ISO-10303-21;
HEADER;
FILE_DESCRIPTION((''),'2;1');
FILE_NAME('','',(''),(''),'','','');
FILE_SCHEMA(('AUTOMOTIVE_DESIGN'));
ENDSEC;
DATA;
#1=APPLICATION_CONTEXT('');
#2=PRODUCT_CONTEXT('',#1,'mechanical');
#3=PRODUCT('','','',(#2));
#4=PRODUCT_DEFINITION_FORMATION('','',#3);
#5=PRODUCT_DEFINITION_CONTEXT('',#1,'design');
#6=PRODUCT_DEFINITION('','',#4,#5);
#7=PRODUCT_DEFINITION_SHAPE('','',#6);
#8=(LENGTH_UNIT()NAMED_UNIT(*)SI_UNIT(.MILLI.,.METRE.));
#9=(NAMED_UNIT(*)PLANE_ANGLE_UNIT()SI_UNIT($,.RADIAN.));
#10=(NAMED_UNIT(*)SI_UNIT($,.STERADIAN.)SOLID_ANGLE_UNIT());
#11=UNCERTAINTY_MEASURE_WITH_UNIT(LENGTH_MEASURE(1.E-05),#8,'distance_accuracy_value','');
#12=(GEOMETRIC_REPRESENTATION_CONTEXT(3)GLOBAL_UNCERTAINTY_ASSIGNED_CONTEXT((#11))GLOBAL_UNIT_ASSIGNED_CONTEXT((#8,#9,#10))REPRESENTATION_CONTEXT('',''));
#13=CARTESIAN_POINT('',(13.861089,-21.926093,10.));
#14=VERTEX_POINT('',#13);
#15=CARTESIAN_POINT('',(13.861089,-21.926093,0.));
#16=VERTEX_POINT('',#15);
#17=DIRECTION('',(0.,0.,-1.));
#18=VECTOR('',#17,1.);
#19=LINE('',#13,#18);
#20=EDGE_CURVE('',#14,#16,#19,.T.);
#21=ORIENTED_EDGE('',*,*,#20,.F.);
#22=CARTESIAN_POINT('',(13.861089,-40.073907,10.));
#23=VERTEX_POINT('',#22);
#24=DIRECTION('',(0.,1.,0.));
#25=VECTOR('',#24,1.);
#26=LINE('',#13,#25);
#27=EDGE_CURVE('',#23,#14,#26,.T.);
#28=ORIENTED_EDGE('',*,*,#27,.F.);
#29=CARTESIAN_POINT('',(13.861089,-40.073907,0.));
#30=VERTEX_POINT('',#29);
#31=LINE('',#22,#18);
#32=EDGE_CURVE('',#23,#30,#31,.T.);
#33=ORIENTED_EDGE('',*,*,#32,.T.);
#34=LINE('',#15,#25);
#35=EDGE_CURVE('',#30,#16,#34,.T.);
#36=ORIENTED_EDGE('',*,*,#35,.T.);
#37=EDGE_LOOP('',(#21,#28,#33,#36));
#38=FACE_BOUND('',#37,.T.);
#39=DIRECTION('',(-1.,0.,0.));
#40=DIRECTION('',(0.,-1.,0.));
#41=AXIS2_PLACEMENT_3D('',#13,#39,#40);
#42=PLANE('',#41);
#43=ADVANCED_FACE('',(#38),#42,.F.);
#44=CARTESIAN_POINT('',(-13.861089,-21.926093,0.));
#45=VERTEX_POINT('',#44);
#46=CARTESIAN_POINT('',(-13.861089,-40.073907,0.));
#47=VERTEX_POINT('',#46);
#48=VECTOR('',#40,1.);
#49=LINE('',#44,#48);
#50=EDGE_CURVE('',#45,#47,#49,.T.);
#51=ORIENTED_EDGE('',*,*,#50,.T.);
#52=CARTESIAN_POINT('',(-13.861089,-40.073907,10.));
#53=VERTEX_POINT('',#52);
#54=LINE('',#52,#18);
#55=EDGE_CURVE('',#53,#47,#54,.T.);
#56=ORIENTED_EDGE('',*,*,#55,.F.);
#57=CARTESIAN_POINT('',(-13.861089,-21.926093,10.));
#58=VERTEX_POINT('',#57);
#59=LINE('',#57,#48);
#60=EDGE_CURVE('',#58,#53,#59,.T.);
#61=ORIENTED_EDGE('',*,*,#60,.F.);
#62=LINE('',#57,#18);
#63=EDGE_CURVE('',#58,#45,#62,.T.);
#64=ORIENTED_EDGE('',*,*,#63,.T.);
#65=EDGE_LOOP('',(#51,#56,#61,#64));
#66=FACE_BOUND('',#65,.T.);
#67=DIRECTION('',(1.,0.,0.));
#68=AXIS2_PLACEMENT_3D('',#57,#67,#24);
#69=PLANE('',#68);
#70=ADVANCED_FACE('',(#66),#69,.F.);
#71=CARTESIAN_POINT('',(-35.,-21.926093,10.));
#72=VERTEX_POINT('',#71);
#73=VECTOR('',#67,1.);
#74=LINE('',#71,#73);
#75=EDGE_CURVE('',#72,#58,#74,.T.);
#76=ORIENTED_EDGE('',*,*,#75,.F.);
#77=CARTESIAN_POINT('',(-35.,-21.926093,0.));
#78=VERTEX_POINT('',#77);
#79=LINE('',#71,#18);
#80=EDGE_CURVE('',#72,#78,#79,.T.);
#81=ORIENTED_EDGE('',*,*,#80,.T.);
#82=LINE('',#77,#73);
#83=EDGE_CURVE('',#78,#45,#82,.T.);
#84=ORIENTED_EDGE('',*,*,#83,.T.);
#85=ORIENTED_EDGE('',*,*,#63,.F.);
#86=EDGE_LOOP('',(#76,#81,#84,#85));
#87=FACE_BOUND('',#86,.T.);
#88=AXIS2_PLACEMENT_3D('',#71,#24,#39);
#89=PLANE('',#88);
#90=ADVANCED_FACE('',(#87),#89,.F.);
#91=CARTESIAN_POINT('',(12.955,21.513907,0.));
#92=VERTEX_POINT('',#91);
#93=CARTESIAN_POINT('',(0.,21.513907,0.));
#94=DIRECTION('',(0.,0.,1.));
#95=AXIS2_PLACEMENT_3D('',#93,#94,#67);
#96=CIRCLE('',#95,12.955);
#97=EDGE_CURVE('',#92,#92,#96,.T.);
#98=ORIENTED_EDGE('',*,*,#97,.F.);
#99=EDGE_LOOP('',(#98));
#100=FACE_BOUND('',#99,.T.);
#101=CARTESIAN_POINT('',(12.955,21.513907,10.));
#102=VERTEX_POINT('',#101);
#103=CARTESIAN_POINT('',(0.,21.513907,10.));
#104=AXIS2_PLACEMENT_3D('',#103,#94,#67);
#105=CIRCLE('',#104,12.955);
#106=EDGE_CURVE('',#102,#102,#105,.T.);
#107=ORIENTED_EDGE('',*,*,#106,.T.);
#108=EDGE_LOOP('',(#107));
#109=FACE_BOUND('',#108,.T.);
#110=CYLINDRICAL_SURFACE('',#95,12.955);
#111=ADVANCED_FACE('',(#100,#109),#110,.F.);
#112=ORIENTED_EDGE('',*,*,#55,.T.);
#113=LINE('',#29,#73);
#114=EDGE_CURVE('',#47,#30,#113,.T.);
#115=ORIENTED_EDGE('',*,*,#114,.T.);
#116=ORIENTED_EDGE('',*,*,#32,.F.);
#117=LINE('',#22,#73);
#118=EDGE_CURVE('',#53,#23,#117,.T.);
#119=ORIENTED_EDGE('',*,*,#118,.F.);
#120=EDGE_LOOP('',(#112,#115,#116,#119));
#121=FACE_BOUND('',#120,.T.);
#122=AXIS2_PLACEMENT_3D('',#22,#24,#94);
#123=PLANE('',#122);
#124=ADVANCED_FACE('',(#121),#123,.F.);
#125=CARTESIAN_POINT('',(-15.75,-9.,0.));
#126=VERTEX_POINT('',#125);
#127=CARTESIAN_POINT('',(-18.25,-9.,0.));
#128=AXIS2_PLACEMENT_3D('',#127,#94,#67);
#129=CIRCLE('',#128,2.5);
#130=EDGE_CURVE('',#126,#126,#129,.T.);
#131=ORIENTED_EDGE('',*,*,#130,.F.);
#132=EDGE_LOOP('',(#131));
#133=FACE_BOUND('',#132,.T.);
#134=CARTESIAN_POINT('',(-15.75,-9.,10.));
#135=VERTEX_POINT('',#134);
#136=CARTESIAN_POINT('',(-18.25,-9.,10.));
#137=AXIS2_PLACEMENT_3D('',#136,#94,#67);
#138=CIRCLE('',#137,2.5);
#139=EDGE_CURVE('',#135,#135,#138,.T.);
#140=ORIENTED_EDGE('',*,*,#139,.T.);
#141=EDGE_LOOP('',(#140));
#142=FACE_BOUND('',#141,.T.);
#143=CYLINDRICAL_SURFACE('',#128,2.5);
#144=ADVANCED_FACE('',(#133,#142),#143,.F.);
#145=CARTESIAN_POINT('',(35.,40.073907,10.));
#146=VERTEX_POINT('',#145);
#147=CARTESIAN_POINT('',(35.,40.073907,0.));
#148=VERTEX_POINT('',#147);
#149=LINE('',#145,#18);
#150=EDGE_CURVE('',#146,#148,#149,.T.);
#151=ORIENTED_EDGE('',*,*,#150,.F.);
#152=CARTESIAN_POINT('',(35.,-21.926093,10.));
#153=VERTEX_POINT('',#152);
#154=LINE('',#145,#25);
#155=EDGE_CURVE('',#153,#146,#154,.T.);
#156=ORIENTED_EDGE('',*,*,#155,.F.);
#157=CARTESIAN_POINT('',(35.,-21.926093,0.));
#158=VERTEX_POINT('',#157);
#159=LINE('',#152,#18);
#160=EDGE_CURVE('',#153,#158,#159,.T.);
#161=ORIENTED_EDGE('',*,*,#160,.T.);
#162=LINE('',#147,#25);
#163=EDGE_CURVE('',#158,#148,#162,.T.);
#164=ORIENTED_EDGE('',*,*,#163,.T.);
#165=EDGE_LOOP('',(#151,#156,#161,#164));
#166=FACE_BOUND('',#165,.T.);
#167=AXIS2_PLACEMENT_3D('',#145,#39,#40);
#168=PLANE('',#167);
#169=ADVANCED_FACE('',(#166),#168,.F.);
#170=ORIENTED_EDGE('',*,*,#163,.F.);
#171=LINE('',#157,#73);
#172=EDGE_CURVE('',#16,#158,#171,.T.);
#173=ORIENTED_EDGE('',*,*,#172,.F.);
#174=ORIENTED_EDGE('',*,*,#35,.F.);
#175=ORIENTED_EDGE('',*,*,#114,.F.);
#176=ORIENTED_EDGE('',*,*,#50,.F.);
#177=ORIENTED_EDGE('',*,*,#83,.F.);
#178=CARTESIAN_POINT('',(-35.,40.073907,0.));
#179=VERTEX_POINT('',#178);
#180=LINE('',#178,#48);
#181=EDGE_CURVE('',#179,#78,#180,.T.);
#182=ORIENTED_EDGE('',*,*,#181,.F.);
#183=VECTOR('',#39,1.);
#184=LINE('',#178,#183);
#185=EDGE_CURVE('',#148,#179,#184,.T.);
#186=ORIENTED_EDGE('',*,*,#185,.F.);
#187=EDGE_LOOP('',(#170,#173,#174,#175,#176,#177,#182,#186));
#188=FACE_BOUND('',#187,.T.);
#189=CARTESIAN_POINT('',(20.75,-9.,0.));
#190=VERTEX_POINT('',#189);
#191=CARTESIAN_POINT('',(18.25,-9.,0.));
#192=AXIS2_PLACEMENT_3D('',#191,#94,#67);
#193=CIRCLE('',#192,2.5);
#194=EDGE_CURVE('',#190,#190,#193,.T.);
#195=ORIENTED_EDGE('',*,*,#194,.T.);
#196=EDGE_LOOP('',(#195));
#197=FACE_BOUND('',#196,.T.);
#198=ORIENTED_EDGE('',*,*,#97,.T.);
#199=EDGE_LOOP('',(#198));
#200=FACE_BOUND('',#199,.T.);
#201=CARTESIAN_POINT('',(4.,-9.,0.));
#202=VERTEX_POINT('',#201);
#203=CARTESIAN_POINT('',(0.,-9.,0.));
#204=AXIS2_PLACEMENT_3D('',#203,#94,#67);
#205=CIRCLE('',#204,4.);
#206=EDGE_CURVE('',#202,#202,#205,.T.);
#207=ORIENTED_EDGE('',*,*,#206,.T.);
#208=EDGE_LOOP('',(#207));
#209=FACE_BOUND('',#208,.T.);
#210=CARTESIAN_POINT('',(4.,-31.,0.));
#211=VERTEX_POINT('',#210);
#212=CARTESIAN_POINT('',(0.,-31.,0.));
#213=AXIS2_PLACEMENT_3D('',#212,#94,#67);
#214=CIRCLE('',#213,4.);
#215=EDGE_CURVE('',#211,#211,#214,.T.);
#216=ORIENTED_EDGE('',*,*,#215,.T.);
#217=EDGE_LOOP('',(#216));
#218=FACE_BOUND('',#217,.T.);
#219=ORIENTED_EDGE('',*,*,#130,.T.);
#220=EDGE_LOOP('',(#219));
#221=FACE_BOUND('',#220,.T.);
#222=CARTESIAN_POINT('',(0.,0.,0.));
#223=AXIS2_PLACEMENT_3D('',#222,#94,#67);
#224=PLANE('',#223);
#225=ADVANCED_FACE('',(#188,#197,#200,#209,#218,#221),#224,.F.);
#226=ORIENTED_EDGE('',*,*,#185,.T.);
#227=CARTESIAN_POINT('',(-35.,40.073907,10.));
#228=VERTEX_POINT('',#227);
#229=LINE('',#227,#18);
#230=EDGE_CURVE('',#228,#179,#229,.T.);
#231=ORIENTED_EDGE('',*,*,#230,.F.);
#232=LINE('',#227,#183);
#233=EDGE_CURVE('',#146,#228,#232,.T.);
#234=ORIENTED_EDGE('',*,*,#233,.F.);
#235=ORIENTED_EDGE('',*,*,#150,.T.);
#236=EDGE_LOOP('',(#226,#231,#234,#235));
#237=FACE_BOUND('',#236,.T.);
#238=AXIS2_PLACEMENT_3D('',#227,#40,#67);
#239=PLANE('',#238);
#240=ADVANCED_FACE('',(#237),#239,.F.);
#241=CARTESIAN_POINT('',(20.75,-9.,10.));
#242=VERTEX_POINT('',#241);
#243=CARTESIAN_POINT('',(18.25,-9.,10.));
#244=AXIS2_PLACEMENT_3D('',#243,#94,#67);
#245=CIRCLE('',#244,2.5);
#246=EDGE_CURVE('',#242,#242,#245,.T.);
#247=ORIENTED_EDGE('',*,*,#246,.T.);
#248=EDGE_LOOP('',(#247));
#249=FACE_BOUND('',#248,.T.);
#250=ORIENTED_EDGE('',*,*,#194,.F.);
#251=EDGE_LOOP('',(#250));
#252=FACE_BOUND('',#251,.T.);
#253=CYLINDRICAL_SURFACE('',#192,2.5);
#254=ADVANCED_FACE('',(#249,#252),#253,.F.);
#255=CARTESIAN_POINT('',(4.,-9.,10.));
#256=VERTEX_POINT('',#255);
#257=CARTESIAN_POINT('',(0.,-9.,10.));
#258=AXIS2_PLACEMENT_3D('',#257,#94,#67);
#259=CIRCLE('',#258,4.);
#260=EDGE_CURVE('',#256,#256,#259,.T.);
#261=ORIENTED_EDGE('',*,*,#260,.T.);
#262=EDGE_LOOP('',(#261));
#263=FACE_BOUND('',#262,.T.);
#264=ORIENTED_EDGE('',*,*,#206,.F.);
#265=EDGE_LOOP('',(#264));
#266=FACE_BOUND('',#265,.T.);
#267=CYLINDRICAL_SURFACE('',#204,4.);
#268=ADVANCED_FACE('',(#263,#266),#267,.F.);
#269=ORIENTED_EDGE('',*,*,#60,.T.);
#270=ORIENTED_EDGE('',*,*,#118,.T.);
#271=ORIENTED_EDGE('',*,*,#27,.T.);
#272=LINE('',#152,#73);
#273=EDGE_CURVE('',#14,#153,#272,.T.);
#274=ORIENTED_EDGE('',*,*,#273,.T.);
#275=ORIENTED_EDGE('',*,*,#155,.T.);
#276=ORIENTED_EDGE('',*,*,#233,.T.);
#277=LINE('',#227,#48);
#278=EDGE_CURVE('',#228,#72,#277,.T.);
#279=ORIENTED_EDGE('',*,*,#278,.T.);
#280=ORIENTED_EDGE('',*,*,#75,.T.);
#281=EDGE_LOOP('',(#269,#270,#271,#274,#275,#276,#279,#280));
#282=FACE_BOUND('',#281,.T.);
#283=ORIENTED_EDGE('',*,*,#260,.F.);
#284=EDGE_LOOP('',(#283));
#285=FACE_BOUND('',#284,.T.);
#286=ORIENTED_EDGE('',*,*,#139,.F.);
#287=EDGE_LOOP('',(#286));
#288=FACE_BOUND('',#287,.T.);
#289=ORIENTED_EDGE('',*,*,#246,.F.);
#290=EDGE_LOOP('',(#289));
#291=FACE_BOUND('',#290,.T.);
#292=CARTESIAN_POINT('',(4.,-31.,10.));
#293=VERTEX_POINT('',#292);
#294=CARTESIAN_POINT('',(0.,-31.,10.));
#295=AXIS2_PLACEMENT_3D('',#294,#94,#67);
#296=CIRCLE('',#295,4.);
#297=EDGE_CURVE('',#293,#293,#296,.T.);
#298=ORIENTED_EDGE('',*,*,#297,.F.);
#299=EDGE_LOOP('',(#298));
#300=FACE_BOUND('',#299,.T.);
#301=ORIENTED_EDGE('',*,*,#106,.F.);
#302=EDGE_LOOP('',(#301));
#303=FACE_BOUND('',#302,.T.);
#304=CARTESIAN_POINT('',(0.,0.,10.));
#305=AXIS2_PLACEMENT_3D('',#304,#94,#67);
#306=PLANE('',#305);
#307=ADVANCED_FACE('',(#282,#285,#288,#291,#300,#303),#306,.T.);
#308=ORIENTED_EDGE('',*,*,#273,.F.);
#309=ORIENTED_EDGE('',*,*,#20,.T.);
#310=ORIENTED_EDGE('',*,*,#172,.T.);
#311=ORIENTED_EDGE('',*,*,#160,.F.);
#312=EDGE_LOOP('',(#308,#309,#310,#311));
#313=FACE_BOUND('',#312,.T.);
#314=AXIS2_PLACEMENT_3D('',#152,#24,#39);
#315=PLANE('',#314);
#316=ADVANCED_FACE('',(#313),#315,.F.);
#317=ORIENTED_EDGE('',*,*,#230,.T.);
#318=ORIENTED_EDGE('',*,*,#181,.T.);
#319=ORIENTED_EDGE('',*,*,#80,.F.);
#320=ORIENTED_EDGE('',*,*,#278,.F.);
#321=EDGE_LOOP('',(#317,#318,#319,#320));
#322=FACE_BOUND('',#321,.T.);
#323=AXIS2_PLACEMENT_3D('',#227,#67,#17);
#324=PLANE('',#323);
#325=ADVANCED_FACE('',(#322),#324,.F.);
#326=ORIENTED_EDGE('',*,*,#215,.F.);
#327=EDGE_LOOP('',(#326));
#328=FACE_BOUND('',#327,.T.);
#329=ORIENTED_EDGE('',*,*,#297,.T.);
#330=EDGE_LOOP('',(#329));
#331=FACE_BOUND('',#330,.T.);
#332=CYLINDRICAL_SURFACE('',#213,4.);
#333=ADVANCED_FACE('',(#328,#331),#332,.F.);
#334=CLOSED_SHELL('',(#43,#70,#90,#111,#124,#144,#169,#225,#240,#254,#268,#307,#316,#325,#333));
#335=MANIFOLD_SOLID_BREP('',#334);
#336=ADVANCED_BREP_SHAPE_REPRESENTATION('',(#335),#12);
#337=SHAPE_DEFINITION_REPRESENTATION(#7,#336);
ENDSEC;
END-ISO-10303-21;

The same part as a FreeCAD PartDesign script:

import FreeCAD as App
import Part
import Sketcher

V = App.Vector


def add_polygon(sketch, points):
    """Adds a closed chain of lines whose ends are joined by coincident constraints."""
    first, n = sketch.GeometryCount, len(points)
    for a, b in zip(points, points[1:] + points[:1]):
        sketch.addGeometry(Part.LineSegment(App.Vector(*a, 0), App.Vector(*b, 0)), False)
    for i in range(n):
        sketch.addConstraint(Sketcher.Constraint("Coincident", first + i, 2, first + (i + 1) % n, 1))

doc = App.newDocument("Part")
body = doc.addObject("PartDesign::Body", "Body")

sketch1 = doc.addObject("Sketcher::SketchObject", "Sketch")
body.addObject(sketch1)
sketch1.AttachmentSupport = (doc.XY_Plane, [""])
sketch1.MapMode = "FlatFace"
add_polygon(sketch1, [(35, 40.073907), (-35, 40.073907), (-35, -21.926093), (-13.861089, -21.926093), (-13.861089, -40.073907), (13.861089, -40.073907), (13.861089, -21.926093), (35, -21.926093)])
sketch1.addConstraint([
    Sketcher.Constraint("Horizontal", 0),
    Sketcher.Constraint("Vertical", 1),
    Sketcher.Constraint("Horizontal", 2),
    Sketcher.Constraint("Vertical", 3),
    Sketcher.Constraint("Horizontal", 4),
    Sketcher.Constraint("Vertical", 5),
    Sketcher.Constraint("Horizontal", 6),
    Sketcher.Constraint("Vertical", 7),
    Sketcher.Constraint("Symmetric", 2, 2, 5, 2, -2),
    Sketcher.Constraint("Equal", 2, 6),
    Sketcher.Constraint("DistanceX", 0, 2, 0, 1, 70.0),
    Sketcher.Constraint("DistanceY", 1, 2, 1, 1, 62.0),
    Sketcher.Constraint("DistanceX", 2, 1, 2, 2, 21.138911),
    Sketcher.Constraint("DistanceY", 3, 2, 3, 1, 18.147813),
    Sketcher.Constraint("DistanceY", -1, 1, 0, 2, 40.073907),
])
pad1 = doc.addObject("PartDesign::Pad", "Pad")
body.addObject(pad1)
pad1.Profile = sketch1
pad1.Length = 10

sketch2 = doc.addObject("Sketcher::SketchObject", "Sketch001")
body.addObject(sketch2)
sketch2.AttachmentSupport = (doc.XY_Plane, [""])
sketch2.MapMode = "FlatFace"
sketch2.AttachmentOffset = App.Placement(V(0, 0, 10), App.Rotation())
sketch2.addGeometry([
    Part.Circle(V(0, -31, 0), V(0, 0, 1), 4),
    Part.Circle(V(0, -9, 0), V(0, 0, 1), 4),
    Part.Circle(V(-18.25, -9, 0), V(0, 0, 1), 2.5),
    Part.Circle(V(18.25, -9, 0), V(0, 0, 1), 2.5),
], False)
sketch2.addConstraint([
    Sketcher.Constraint("Equal", 0, 1),
    Sketcher.Constraint("Equal", 2, 3),
    Sketcher.Constraint("Symmetric", 2, 3, 3, 3, -2),
    Sketcher.Constraint("PointOnObject", 0, 3, -2),
    Sketcher.Constraint("PointOnObject", 1, 3, -2),
    Sketcher.Constraint("Horizontal", 1, 3, 2, 3),
    Sketcher.Constraint("Diameter", 0, 8.0),
    Sketcher.Constraint("Diameter", 2, 5.0),
    Sketcher.Constraint("DistanceY", 0, 3, -1, 1, 31.0),
    Sketcher.Constraint("DistanceY", 1, 3, -1, 1, 9.0),
    Sketcher.Constraint("DistanceX", 2, 3, 3, 3, 36.5),
])
pocket1 = doc.addObject("PartDesign::Pocket", "Pocket")
body.addObject(pocket1)
pocket1.Profile = sketch2
pocket1.Type = "ThroughAll"

sketch3 = doc.addObject("Sketcher::SketchObject", "Sketch002")
body.addObject(sketch3)
sketch3.AttachmentSupport = (doc.XY_Plane, [""])
sketch3.MapMode = "FlatFace"
sketch3.AttachmentOffset = App.Placement(V(0, 0, 10), App.Rotation())
sketch3.addGeometry(Part.Circle(V(0, 21.513907, 0), V(0, 0, 1), 12.955), False)
sketch3.addConstraint([
    Sketcher.Constraint("PointOnObject", 0, 3, -2),
    Sketcher.Constraint("Diameter", 0, 25.91),
    Sketcher.Constraint("DistanceY", -1, 1, 0, 3, 21.513907),
])
pocket2 = doc.addObject("PartDesign::Pocket", "Pocket001")
body.addObject(pocket2)
pocket2.Profile = sketch3
pocket2.Length = 10

doc.recompute()
